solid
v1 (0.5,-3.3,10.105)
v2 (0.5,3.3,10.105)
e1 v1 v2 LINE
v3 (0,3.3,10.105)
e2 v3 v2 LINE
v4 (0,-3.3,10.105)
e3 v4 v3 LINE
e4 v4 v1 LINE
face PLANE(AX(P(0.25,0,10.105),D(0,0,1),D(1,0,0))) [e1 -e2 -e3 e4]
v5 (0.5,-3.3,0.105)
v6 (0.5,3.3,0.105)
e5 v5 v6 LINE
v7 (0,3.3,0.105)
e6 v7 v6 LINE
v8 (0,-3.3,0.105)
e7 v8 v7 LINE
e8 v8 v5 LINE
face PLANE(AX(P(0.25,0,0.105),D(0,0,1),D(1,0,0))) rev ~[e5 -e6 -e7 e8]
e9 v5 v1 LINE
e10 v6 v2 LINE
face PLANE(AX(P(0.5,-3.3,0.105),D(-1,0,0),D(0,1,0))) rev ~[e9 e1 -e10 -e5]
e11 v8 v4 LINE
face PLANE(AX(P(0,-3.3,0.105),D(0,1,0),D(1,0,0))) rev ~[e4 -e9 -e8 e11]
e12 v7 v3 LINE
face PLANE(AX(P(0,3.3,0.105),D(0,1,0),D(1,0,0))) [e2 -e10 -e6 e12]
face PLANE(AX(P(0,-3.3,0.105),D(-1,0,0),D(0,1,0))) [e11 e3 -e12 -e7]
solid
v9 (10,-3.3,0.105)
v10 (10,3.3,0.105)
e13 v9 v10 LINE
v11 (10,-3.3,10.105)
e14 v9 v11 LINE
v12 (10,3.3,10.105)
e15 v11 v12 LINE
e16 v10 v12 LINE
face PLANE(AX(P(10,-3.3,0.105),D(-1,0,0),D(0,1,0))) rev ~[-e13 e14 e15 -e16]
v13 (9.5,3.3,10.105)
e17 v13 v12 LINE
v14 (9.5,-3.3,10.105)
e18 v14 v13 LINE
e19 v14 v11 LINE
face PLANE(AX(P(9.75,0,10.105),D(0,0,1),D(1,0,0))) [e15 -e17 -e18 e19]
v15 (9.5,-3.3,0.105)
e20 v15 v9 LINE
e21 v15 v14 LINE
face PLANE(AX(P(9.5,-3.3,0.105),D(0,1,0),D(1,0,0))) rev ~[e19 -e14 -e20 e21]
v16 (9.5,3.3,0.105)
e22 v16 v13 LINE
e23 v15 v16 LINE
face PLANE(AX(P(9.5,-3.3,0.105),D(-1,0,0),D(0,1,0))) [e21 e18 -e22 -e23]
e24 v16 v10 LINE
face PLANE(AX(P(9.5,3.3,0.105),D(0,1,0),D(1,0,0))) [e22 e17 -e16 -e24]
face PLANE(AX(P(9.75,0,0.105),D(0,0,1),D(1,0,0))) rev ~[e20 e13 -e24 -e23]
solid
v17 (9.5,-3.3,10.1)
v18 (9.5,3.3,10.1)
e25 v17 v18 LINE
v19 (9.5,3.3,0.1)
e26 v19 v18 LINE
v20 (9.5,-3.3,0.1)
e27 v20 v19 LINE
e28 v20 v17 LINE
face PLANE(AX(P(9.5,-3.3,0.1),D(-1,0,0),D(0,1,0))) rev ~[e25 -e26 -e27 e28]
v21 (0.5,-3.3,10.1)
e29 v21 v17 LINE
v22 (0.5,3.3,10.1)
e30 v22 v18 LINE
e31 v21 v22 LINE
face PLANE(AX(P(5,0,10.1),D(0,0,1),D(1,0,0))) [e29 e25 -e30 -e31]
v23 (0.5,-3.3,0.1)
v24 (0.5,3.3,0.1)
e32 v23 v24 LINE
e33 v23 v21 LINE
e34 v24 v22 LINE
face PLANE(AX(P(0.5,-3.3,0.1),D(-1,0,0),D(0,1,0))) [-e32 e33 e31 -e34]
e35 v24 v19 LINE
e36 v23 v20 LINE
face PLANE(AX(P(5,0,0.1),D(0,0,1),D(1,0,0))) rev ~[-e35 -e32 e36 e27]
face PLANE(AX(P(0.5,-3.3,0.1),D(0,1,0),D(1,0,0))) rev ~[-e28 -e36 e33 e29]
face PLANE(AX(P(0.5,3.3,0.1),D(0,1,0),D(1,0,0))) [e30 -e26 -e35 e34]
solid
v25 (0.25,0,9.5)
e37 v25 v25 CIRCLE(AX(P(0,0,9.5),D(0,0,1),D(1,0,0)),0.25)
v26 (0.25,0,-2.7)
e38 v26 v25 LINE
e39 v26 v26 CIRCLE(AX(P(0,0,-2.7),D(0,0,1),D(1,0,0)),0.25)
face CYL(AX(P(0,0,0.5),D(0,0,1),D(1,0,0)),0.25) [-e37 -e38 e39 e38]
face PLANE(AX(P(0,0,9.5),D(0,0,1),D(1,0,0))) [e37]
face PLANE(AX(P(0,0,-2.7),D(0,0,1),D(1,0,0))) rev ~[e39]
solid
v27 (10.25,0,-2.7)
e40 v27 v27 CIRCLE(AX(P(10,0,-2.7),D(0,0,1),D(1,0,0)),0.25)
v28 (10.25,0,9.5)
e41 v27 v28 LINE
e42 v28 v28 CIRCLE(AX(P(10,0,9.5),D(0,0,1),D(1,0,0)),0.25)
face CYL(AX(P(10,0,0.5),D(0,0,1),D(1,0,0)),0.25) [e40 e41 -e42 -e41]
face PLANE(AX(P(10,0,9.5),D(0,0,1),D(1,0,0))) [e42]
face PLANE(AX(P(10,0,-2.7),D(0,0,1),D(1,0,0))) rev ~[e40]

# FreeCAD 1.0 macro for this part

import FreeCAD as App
import Part
import Sketcher

V = App.Vector


def add_polygon(sketch, points):
    """Adds a closed chain of lines whose ends are joined by coincident constraints."""
    first, n = sketch.GeometryCount, len(points)
    for a, b in zip(points, points[1:] + points[:1]):
        sketch.addGeometry(Part.LineSegment(App.Vector(*a, 0), App.Vector(*b, 0)), False)
    for i in range(n):
        sketch.addConstraint(Sketcher.Constraint("Coincident", first + i, 2, first + (i + 1) % n, 1))

doc = App.newDocument("Part")
body = doc.addObject("PartDesign::Body", "Body")

# Sketch on XY plane
sketch1 = doc.addObject("Sketcher::SketchObject", "Sketch")
body.addObject(sketch1)
sketch1.AttachmentSupport = (doc.XY_Plane, [""])
sketch1.MapMode = "FlatFace"
sketch1.AttachmentOffset = App.Placement(V(0, 0, 0.1), App.Rotation())
add_polygon(sketch1, [(0.5, 3.3), (0.5, -3.3), (9.5, -3.3), (9.5, 3.3)])  # lines 0-3
sketch1.addConstraint([
    Sketcher.Constraint("Vertical", 0),
    Sketcher.Constraint("Horizontal", 1),
    Sketcher.Constraint("Vertical", 2),
    Sketcher.Constraint("Horizontal", 3),
    Sketcher.Constraint("DistanceX", 1, 1, 1, 2, 9.0),
    Sketcher.Constraint("DistanceY", 0, 2, 0, 1, 6.6),
    Sketcher.Constraint("DistanceX", -1, 1, 0, 2, 0.5),
    Sketcher.Constraint("DistanceY", 0, 2, -1, 1, 3.3),
])
pad1 = doc.addObject("PartDesign::Pad", "Pad")
body.addObject(pad1)
pad1.Profile = sketch1
pad1.Length = 10
body2 = doc.addObject("PartDesign::Body", "Body001")
body2.AllowCompound = True

# Sketch on XY plane
sketch2 = doc.addObject("Sketcher::SketchObject", "Sketch001")
body2.addObject(sketch2)
sketch2.AttachmentSupport = (doc.getObject("XY_Plane001"), [""])
sketch2.MapMode = "FlatFace"
sketch2.AttachmentOffset = App.Placement(V(0, 0, 0.5), App.Rotation())
sketch2.addGeometry([
    Part.Circle(V(0, 0, 0), V(0, 0, 1), 0.25),
    Part.Circle(V(10, 0, 0), V(0, 0, 1), 0.25),
], False)
sketch2.addConstraint([
    Sketcher.Constraint("Coincident", 0, 3, -1, 1),
    Sketcher.Constraint("Equal", 0, 1),
    Sketcher.Constraint("PointOnObject", 1, 3, -1),
    Sketcher.Constraint("Diameter", 0, 0.5),
    Sketcher.Constraint("DistanceX", -1, 1, 1, 3, 10.0),
])
pad2 = doc.addObject("PartDesign::Pad", "Pad001")
body2.addObject(pad2)
pad2.Profile = sketch2
pad2.Type = "TwoLengths"
pad2.Length = 9
pad2.Length2 = 3.2
body3 = doc.addObject("PartDesign::Body", "Body002")
body3.AllowCompound = True

# Sketch on XY plane
sketch3 = doc.addObject("Sketcher::SketchObject", "Sketch002")
body3.addObject(sketch3)
sketch3.AttachmentSupport = (doc.getObject("XY_Plane002"), [""])
sketch3.MapMode = "FlatFace"
sketch3.AttachmentOffset = App.Placement(V(0, 0, 0.105), App.Rotation())
add_polygon(sketch3, [(0, 3.3), (0, -3.3), (0.5, -3.3), (0.5, 3.3)])  # lines 0-3
add_polygon(sketch3, [(9.5, 3.3), (9.5, -3.3), (10, -3.3), (10, 3.3)])  # lines 4-7
sketch3.addConstraint([
    Sketcher.Constraint("Vertical", 0),
    Sketcher.Constraint("Horizontal", 1),
    Sketcher.Constraint("Vertical", 2),
    Sketcher.Constraint("Horizontal", 3),
    Sketcher.Constraint("Vertical", 4),
    Sketcher.Constraint("Horizontal", 5),
    Sketcher.Constraint("Vertical", 6),
    Sketcher.Constraint("Horizontal", 7),
    Sketcher.Constraint("Symmetric", 0, 2, 3, 2, -1, 1),
    Sketcher.Constraint("Horizontal", 1, 2, 4, 2),
    Sketcher.Constraint("Horizontal", 3, 2, 6, 2),
    Sketcher.Constraint("Equal", 3, 5),
    Sketcher.Constraint("DistanceX", 1, 1, 1, 2, 0.5),
    Sketcher.Constraint("DistanceY", 0, 2, 0, 1, 6.6),
    Sketcher.Constraint("DistanceX", -1, 1, 5, 2, 10.0),
])
pad3 = doc.addObject("PartDesign::Pad", "Pad002")
body3.addObject(pad3)
pad3.Profile = sketch3
pad3.Length = 10

doc.recompute()
